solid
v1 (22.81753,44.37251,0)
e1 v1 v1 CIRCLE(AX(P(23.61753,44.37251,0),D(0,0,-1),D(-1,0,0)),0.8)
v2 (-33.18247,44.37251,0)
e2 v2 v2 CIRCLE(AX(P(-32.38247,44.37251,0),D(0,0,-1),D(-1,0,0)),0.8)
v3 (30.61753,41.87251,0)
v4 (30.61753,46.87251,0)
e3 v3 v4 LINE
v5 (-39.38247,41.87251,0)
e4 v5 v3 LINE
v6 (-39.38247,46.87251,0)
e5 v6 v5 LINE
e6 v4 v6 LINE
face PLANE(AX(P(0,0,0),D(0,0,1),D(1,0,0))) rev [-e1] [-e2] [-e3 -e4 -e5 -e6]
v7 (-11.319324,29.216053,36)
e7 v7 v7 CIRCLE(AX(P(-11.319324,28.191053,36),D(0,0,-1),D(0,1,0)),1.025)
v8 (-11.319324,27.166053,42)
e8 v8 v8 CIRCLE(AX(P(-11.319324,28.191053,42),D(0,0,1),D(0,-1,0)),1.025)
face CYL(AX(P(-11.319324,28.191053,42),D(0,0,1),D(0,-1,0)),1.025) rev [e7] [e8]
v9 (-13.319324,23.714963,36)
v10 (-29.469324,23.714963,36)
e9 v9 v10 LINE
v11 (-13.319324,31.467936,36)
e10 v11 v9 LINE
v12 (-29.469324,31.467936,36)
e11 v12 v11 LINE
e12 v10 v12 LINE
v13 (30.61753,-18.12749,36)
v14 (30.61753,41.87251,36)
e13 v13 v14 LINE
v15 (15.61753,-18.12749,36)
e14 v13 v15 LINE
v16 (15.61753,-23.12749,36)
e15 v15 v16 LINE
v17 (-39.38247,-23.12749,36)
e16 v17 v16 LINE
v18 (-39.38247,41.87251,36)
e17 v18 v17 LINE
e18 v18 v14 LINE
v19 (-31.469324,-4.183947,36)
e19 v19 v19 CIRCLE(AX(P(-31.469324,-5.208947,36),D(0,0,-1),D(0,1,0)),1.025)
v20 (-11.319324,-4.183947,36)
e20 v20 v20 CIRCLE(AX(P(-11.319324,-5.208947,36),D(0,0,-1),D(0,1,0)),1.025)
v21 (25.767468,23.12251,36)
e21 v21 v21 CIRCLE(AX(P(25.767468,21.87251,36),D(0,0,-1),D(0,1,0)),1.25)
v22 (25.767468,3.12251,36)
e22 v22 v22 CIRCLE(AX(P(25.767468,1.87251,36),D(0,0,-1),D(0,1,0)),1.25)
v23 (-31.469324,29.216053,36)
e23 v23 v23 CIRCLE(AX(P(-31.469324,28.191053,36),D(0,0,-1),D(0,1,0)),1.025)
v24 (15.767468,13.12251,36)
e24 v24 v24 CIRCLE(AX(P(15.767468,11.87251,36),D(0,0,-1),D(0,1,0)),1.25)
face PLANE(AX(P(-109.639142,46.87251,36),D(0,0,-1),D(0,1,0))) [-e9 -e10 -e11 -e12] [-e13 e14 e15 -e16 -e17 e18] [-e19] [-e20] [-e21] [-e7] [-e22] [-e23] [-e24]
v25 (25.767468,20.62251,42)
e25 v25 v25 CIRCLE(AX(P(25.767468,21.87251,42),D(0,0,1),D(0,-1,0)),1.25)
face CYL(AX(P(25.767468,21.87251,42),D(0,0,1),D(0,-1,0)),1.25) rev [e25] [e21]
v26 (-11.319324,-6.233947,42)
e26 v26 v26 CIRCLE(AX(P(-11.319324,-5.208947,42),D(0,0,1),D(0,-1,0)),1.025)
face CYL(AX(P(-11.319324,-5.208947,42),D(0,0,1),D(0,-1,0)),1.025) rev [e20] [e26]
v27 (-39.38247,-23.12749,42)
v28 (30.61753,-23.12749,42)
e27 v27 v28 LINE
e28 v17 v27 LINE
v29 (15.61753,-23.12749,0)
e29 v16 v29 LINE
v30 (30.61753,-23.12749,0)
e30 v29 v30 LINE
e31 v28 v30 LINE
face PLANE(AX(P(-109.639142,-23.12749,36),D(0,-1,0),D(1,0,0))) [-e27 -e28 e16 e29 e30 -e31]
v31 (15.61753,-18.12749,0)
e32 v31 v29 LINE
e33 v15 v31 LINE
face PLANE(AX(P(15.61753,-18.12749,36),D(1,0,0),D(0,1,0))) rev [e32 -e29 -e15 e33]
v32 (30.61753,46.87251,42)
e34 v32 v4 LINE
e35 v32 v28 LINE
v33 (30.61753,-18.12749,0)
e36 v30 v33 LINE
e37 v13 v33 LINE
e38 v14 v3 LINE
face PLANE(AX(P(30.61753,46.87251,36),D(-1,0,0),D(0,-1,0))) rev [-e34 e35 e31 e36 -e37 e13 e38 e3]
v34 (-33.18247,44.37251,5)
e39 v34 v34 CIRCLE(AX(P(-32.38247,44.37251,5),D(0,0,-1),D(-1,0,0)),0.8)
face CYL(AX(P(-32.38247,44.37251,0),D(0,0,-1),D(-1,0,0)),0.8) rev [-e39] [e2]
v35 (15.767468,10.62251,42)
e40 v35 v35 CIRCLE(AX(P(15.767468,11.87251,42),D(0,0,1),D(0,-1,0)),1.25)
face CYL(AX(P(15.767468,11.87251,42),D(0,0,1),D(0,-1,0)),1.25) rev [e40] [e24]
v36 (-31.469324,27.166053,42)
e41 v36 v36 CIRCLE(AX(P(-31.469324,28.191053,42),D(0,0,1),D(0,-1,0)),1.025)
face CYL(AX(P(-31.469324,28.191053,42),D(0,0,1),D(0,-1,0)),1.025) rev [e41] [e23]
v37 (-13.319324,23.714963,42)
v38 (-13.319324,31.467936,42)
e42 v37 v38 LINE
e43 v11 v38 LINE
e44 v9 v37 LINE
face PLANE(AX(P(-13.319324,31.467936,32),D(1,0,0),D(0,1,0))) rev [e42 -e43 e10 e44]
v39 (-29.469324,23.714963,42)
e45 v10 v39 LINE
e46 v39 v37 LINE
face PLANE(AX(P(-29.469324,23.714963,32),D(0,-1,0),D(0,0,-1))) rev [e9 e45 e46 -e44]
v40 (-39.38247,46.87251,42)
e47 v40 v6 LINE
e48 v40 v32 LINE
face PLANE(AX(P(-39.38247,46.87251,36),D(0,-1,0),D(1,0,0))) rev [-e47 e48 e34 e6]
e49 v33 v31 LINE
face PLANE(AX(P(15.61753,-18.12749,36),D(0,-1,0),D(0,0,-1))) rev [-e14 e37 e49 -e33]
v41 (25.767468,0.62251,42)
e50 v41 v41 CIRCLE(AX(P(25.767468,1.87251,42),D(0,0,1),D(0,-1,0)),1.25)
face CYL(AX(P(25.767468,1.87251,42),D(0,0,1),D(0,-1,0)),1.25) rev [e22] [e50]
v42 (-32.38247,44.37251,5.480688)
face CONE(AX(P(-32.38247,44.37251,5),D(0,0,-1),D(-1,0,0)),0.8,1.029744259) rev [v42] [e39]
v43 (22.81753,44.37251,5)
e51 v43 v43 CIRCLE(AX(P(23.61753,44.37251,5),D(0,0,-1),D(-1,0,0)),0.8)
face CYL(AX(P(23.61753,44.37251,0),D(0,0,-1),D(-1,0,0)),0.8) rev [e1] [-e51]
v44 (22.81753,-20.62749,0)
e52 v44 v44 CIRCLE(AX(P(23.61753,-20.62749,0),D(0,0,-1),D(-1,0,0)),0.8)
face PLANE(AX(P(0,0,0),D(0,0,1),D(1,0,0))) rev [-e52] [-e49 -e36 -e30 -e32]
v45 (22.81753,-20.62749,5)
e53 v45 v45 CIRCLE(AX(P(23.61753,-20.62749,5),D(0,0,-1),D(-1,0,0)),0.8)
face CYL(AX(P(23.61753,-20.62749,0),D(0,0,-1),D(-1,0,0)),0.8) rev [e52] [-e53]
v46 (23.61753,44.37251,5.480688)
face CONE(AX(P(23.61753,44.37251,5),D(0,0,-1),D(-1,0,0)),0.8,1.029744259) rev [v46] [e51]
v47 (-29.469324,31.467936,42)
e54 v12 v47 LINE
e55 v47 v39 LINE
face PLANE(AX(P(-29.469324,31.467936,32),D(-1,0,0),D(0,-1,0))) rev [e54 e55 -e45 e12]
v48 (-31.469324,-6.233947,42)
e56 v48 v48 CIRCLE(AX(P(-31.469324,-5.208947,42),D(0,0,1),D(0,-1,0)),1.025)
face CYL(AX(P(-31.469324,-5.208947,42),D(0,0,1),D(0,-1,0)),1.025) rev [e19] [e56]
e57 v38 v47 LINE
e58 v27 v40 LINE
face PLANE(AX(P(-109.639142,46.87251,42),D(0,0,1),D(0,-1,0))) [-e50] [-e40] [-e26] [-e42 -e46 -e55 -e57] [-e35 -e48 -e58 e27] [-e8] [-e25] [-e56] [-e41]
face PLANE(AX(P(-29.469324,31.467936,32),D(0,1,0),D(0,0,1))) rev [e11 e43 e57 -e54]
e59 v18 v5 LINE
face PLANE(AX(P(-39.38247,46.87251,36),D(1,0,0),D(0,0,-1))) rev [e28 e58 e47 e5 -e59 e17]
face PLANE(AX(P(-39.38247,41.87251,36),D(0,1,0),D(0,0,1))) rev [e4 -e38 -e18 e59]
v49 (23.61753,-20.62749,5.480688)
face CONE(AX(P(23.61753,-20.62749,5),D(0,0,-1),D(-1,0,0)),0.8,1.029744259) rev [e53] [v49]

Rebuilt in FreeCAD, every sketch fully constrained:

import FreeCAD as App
import Part
import Sketcher

doc = App.newDocument("Part")
params = doc.addObject("Spreadsheet::Sheet", "Params")
for row, (alias, value) in enumerate([
    ("sketch1_width", "70 mm"),
    ("sketch1_height", "5 mm"),
    ("pad1_length", "36 mm"),
    ("sketch2_width", "15 mm"),
    ("sketch2_height", "5 mm"),
    ("pad2_length", "36 mm"),
    ("sketch3_width", "70 mm"),
    ("sketch3_height", "6 mm"),
    ("pad3_length", "70 mm"),
    ("sketch4_diameter", "1.6 mm"),
    ("hole_diameter", "1.6 mm"),
    ("hole_depth", "5 mm"),
    ("sketch5_diameter", "2.5 mm"),
    ("hole2_diameter", "2.5 mm"),
    ("sketch6_diameter", "2.05 mm"),
    ("hole3_diameter", "2.05 mm"),
    ("sketch7_width", "16.15 mm"),
    ("pocket1_length", "10 mm"),
], start=1):
    params.set(f"A{row}", alias)
    params.set(f"B{row}", "=" + value)
    params.setAlias(f"B{row}", alias)

body = doc.addObject("PartDesign::Body", "Body")

# Sketch on XY plane
sketch1 = doc.addObject("Sketcher::SketchObject", "Sketch")
body.addObject(sketch1)
sketch1.AttachmentSupport = (doc.XY_Plane, [""])
sketch1.MapMode = "FlatFace"
sketch1.addGeometry(Part.LineSegment(App.Vector(-39, 47, 0), App.Vector(-39, 42, 0)), False)
sketch1.addGeometry(Part.LineSegment(App.Vector(-39, 42, 0), App.Vector(31, 42, 0)), False)
sketch1.addGeometry(Part.LineSegment(App.Vector(31, 42, 0), App.Vector(31, 47, 0)), False)
sketch1.addGeometry(Part.LineSegment(App.Vector(31, 47, 0), App.Vector(-39, 47, 0)), False)
sketch1.addConstraint(Sketcher.Constraint("Coincident", 0, 2, 1, 1))
sketch1.addConstraint(Sketcher.Constraint("Coincident", 1, 2, 2, 1))
sketch1.addConstraint(Sketcher.Constraint("Coincident", 2, 2, 3, 1))
sketch1.addConstraint(Sketcher.Constraint("Coincident", 3, 2, 0, 1))
sketch1.addConstraint(Sketcher.Constraint("Vertical", 0))
sketch1.addConstraint(Sketcher.Constraint("Horizontal", 1))
sketch1.addConstraint(Sketcher.Constraint("Vertical", 2))
sketch1.addConstraint(Sketcher.Constraint("Horizontal", 3))
sketch1.addConstraint(Sketcher.Constraint("DistanceX", 1, 1, 1, 2, 70.0))
sketch1.addConstraint(Sketcher.Constraint("DistanceY", 0, 2, 0, 1, 5.0))
sketch1.addConstraint(Sketcher.Constraint("DistanceX", 0, 2, -1, 1, 39.38247))
sketch1.addConstraint(Sketcher.Constraint("DistanceY", -1, 1, 0, 2, 41.87251))
sketch1.setExpression("Constraints[8]", "Params.sketch1_width")
sketch1.setExpression("Constraints[9]", "Params.sketch1_height")
pad1 = doc.addObject("PartDesign::Pad", "Pad")
body.addObject(pad1)
pad1.Profile = sketch1
pad1.setExpression("Length", "Params.pad1_length")
body2 = doc.addObject("PartDesign::Body", "Body001")

# Sketch on XY plane
sketch2 = doc.addObject("Sketcher::SketchObject", "Sketch001")
body2.addObject(sketch2)
sketch2.AttachmentSupport = (doc.getObject("XY_Plane001"), [""])
sketch2.MapMode = "FlatFace"
sketch2.addGeometry(Part.LineSegment(App.Vector(16, -18, 0), App.Vector(16, -23, 0)), False)
sketch2.addGeometry(Part.LineSegment(App.Vector(16, -23, 0), App.Vector(31, -23, 0)), False)
sketch2.addGeometry(Part.LineSegment(App.Vector(31, -23, 0), App.Vector(31, -18, 0)), False)
sketch2.addGeometry(Part.LineSegment(App.Vector(31, -18, 0), App.Vector(16, -18, 0)), False)
sketch2.addConstraint(Sketcher.Constraint("Coincident", 0, 2, 1, 1))
sketch2.addConstraint(Sketcher.Constraint("Coincident", 1, 2, 2, 1))
sketch2.addConstraint(Sketcher.Constraint("Coincident", 2, 2, 3, 1))
sketch2.addConstraint(Sketcher.Constraint("Coincident", 3, 2, 0, 1))
sketch2.addConstraint(Sketcher.Constraint("Vertical", 0))
sketch2.addConstraint(Sketcher.Constraint("Horizontal", 1))
sketch2.addConstraint(Sketcher.Constraint("Vertical", 2))
sketch2.addConstraint(Sketcher.Constraint("Horizontal", 3))
sketch2.addConstraint(Sketcher.Constraint("DistanceX", 1, 1, 1, 2, 15.0))
sketch2.addConstraint(Sketcher.Constraint("DistanceY", 0, 2, 0, 1, 5.0))
sketch2.addConstraint(Sketcher.Constraint("DistanceX", -1, 1, 0, 2, 15.61753))
sketch2.addConstraint(Sketcher.Constraint("DistanceY", 0, 2, -1, 1, 23.12749))
sketch2.setExpression("Constraints[8]", "Params.sketch2_width")
sketch2.setExpression("Constraints[9]", "Params.sketch2_height")
pad2 = doc.addObject("PartDesign::Pad", "Pad001")
body2.addObject(pad2)
pad2.Profile = sketch2
pad2.setExpression("Length", "Params.pad2_length")
body.AllowCompound = True
doc.recompute()

boolean = doc.addObject("PartDesign::Boolean", "Boolean")
body.addObject(boolean)
boolean.Type = "Fuse"
boolean.addObjects([body2])

# Sketch on YZ plane
sketch3 = doc.addObject("Sketcher::SketchObject", "Sketch002")
body.addObject(sketch3)
sketch3.AttachmentSupport = (doc.YZ_Plane, [""])
sketch3.MapMode = "FlatFace"
sketch3.AttachmentOffset = App.Placement(App.Vector(0, 0, 30.61753), App.Rotation())
sketch3.addGeometry(Part.LineSegment(App.Vector(47, 42, 0), App.Vector(-23, 42, 0)), False)
sketch3.addGeometry(Part.LineSegment(App.Vector(-23, 42, 0), App.Vector(-23, 36, 0)), False)
sketch3.addGeometry(Part.LineSegment(App.Vector(-23, 36, 0), App.Vector(47, 36, 0)), False)
sketch3.addGeometry(Part.LineSegment(App.Vector(47, 36, 0), App.Vector(47, 42, 0)), False)
sketch3.addConstraint(Sketcher.Constraint("Coincident", 0, 2, 1, 1))
sketch3.addConstraint(Sketcher.Constraint("Coincident", 1, 2, 2, 1))
sketch3.addConstraint(Sketcher.Constraint("Coincident", 2, 2, 3, 1))
sketch3.addConstraint(Sketcher.Constraint("Coincident", 3, 2, 0, 1))
sketch3.addConstraint(Sketcher.Constraint("Horizontal", 0))
sketch3.addConstraint(Sketcher.Constraint("Vertical", 1))
sketch3.addConstraint(Sketcher.Constraint("Horizontal", 2))
sketch3.addConstraint(Sketcher.Constraint("Vertical", 3))
sketch3.addConstraint(Sketcher.Constraint("DistanceX", 0, 2, 0, 1, 70.0))
sketch3.addConstraint(Sketcher.Constraint("DistanceY", 1, 2, 1, 1, 6.0))
sketch3.addConstraint(Sketcher.Constraint("DistanceY", -1, 1, 0, 2, 42.0))
sketch3.addConstraint(Sketcher.Constraint("DistanceX", 0, 2, -1, 1, 23.12749))
sketch3.setExpression("Constraints[8]", "Params.sketch3_width")
sketch3.setExpression("Constraints[9]", "Params.sketch3_height")
pad3 = doc.addObject("PartDesign::Pad", "Pad002")
body.addObject(pad3)
pad3.Profile = sketch3
pad3.setExpression("Length", "Params.pad3_length")
pad3.Reversed = True

# Sketch on XY plane
sketch4 = doc.addObject("Sketcher::SketchObject", "Sketch003")
body.addObject(sketch4)
sketch4.AttachmentSupport = (doc.XY_Plane, [""])
sketch4.MapMode = "FlatFace"
sketch4.addGeometry(Part.Circle(App.Vector(23.6, 44.4, 0), App.Vector(0, 0, 1), 0.8), False)
sketch4.addGeometry(Part.Circle(App.Vector(-32.4, 44.4, 0), App.Vector(0, 0, 1), 0.8), False)
sketch4.addGeometry(Part.Circle(App.Vector(23.6, -20.6, 0), App.Vector(0, 0, 1), 0.8), False)
sketch4.addConstraint(Sketcher.Constraint("Equal", 0, 1))
sketch4.addConstraint(Sketcher.Constraint("Equal", 1, 2))
sketch4.addConstraint(Sketcher.Constraint("Horizontal", 0, 3, 1, 3))
sketch4.addConstraint(Sketcher.Constraint("Vertical", 0, 3, 2, 3))
sketch4.addConstraint(Sketcher.Constraint("Diameter", 0, 1.6))
sketch4.addConstraint(Sketcher.Constraint("DistanceX", 1, 3, 0, 3, 56.0))
sketch4.addConstraint(Sketcher.Constraint("DistanceY", 2, 3, 0, 3, 65.0))
sketch4.addConstraint(Sketcher.Constraint("DistanceX", -1, 1, 0, 3, 23.61753))
sketch4.addConstraint(Sketcher.Constraint("DistanceY", -1, 1, 0, 3, 44.37251))
sketch4.setExpression("Constraints[4]", "Params.sketch4_diameter")
doc.recompute()
hole = doc.addObject("PartDesign::Hole", "Hole")
body.addObject(hole)
hole.Profile = sketch4
hole.ThreadType = "None"
hole.setExpression("Diameter", "Params.hole_diameter")
hole.DepthType = "Dimension"
hole.setExpression("Depth", "Params.hole_depth")
hole.DrillPoint = "Angled"
hole.DrillPointAngle = 118
hole.Reversed = True

# Sketch on XY plane
sketch5 = doc.addObject("Sketcher::SketchObject", "Sketch004")
body.addObject(sketch5)
sketch5.AttachmentSupport = (doc.XY_Plane, [""])
sketch5.MapMode = "FlatFace"
sketch5.AttachmentOffset = App.Placement(App.Vector(0, 0, 42), App.Rotation())
sketch5.addGeometry(Part.Circle(App.Vector(15.8, 11.9, 0), App.Vector(0, 0, 1), 1.2), False)
sketch5.addGeometry(Part.Circle(App.Vector(25.8, 1.9, 0), App.Vector(0, 0, 1), 1.2), False)
sketch5.addGeometry(Part.Circle(App.Vector(25.8, 21.9, 0), App.Vector(0, 0, 1), 1.2), False)
sketch5.addConstraint(Sketcher.Constraint("Equal", 0, 1))
sketch5.addConstraint(Sketcher.Constraint("Equal", 1, 2))
sketch5.addConstraint(Sketcher.Constraint("Vertical", 1, 3, 2, 3))
sketch5.addConstraint(Sketcher.Constraint("Diameter", 0, 2.5))
sketch5.addConstraint(Sketcher.Constraint("DistanceX", 0, 3, 1, 3, 10.0))
sketch5.addConstraint(Sketcher.Constraint("DistanceY", 1, 3, 0, 3, 10.0))
sketch5.addConstraint(Sketcher.Constraint("DistanceY", 0, 3, 2, 3, 10.0))
sketch5.addConstraint(Sketcher.Constraint("DistanceX", -1, 1, 0, 3, 15.767468))
sketch5.addConstraint(Sketcher.Constraint("DistanceY", -1, 1, 0, 3, 11.87251))
sketch5.setExpression("Constraints[3]", "Params.sketch5_diameter")
doc.recompute()
hole2 = doc.addObject("PartDesign::Hole", "Hole001")
body.addObject(hole2)
hole2.Profile = sketch5
hole2.ThreadType = "None"
hole2.setExpression("Diameter", "Params.hole2_diameter")
hole2.DepthType = "ThroughAll"

# Sketch on XY plane
sketch6 = doc.addObject("Sketcher::SketchObject", "Sketch005")
body.addObject(sketch6)
sketch6.AttachmentSupport = (doc.XY_Plane, [""])
sketch6.MapMode = "FlatFace"
sketch6.AttachmentOffset = App.Placement(App.Vector(0, 0, 42), App.Rotation())
sketch6.addGeometry(Part.Circle(App.Vector(-31.5, 28.2, 0), App.Vector(0, 0, 1), 1), False)
sketch6.addGeometry(Part.Circle(App.Vector(-11.3, 28.2, 0), App.Vector(0, 0, 1), 1), False)
sketch6.addGeometry(Part.Circle(App.Vector(-11.3, -5.2, 0), App.Vector(0, 0, 1), 1), False)
sketch6.addGeometry(Part.Circle(App.Vector(-31.5, -5.2, 0), App.Vector(0, 0, 1), 1), False)
sketch6.addConstraint(Sketcher.Constraint("Equal", 0, 1))
sketch6.addConstraint(Sketcher.Constraint("Equal", 1, 2))
sketch6.addConstraint(Sketcher.Constraint("Equal", 2, 3))
sketch6.addConstraint(Sketcher.Constraint("Horizontal", 0, 3, 1, 3))
sketch6.addConstraint(Sketcher.Constraint("Horizontal", 2, 3, 3, 3))
sketch6.addConstraint(Sketcher.Constraint("Vertical", 1, 3, 2, 3))
sketch6.addConstraint(Sketcher.Constraint("Vertical", 0, 3, 3, 3))
sketch6.addConstraint(Sketcher.Constraint("Diameter", 0, 2.05))
sketch6.addConstraint(Sketcher.Constraint("DistanceY", 2, 3, 1, 3, 33.4))
sketch6.addConstraint(Sketcher.Constraint("DistanceX", 0, 3, 1, 3, 20.15))
sketch6.addConstraint(Sketcher.Constraint("DistanceX", 0, 3, -1, 1, 31.469324))
sketch6.addConstraint(Sketcher.Constraint("DistanceY", -1, 1, 0, 3, 28.191053))
sketch6.setExpression("Constraints[7]", "Params.sketch6_diameter")
doc.recompute()
hole3 = doc.addObject("PartDesign::Hole", "Hole002")
body.addObject(hole3)
hole3.Profile = sketch6
hole3.ThreadType = "None"
hole3.setExpression("Diameter", "Params.hole3_diameter")
hole3.DepthType = "ThroughAll"

# Sketch on XY plane
sketch7 = doc.addObject("Sketcher::SketchObject", "Sketch006")
body.addObject(sketch7)
sketch7.AttachmentSupport = (doc.XY_Plane, [""])
sketch7.MapMode = "FlatFace"
sketch7.AttachmentOffset = App.Placement(App.Vector(0, 0, 42), App.Rotation())
sketch7.addGeometry(Part.LineSegment(App.Vector(-29, 31, 0), App.Vector(-29, 24, 0)), False)
sketch7.addGeometry(Part.LineSegment(App.Vector(-29, 24, 0), App.Vector(-13, 24, 0)), False)
sketch7.addGeometry(Part.LineSegment(App.Vector(-13, 24, 0), App.Vector(-13, 31, 0)), False)
sketch7.addGeometry(Part.LineSegment(App.Vector(-13, 31, 0), App.Vector(-29, 31, 0)), False)
sketch7.addConstraint(Sketcher.Constraint("Coincident", 0, 2, 1, 1))
sketch7.addConstraint(Sketcher.Constraint("Coincident", 1, 2, 2, 1))
sketch7.addConstraint(Sketcher.Constraint("Coincident", 2, 2, 3, 1))
sketch7.addConstraint(Sketcher.Constraint("Coincident", 3, 2, 0, 1))
sketch7.addConstraint(Sketcher.Constraint("Vertical", 0))
sketch7.addConstraint(Sketcher.Constraint("Horizontal", 1))
sketch7.addConstraint(Sketcher.Constraint("Vertical", 2))
sketch7.addConstraint(Sketcher.Constraint("Horizontal", 3))
sketch7.addConstraint(Sketcher.Constraint("DistanceX", 1, 1, 1, 2, 16.15))
sketch7.addConstraint(Sketcher.Constraint("DistanceY", 0, 2, 0, 1, 7.752973))
sketch7.addConstraint(Sketcher.Constraint("DistanceX", 0, 2, -1, 1, 29.469324))
sketch7.addConstraint(Sketcher.Constraint("DistanceY", -1, 1, 0, 2, 23.714963))
sketch7.setExpression("Constraints[8]", "Params.sketch7_width")
pocket1 = doc.addObject("PartDesign::Pocket", "Pocket")
body.addObject(pocket1)
pocket1.Profile = sketch7
pocket1.setExpression("Length", "Params.pocket1_length")

doc.recompute()
